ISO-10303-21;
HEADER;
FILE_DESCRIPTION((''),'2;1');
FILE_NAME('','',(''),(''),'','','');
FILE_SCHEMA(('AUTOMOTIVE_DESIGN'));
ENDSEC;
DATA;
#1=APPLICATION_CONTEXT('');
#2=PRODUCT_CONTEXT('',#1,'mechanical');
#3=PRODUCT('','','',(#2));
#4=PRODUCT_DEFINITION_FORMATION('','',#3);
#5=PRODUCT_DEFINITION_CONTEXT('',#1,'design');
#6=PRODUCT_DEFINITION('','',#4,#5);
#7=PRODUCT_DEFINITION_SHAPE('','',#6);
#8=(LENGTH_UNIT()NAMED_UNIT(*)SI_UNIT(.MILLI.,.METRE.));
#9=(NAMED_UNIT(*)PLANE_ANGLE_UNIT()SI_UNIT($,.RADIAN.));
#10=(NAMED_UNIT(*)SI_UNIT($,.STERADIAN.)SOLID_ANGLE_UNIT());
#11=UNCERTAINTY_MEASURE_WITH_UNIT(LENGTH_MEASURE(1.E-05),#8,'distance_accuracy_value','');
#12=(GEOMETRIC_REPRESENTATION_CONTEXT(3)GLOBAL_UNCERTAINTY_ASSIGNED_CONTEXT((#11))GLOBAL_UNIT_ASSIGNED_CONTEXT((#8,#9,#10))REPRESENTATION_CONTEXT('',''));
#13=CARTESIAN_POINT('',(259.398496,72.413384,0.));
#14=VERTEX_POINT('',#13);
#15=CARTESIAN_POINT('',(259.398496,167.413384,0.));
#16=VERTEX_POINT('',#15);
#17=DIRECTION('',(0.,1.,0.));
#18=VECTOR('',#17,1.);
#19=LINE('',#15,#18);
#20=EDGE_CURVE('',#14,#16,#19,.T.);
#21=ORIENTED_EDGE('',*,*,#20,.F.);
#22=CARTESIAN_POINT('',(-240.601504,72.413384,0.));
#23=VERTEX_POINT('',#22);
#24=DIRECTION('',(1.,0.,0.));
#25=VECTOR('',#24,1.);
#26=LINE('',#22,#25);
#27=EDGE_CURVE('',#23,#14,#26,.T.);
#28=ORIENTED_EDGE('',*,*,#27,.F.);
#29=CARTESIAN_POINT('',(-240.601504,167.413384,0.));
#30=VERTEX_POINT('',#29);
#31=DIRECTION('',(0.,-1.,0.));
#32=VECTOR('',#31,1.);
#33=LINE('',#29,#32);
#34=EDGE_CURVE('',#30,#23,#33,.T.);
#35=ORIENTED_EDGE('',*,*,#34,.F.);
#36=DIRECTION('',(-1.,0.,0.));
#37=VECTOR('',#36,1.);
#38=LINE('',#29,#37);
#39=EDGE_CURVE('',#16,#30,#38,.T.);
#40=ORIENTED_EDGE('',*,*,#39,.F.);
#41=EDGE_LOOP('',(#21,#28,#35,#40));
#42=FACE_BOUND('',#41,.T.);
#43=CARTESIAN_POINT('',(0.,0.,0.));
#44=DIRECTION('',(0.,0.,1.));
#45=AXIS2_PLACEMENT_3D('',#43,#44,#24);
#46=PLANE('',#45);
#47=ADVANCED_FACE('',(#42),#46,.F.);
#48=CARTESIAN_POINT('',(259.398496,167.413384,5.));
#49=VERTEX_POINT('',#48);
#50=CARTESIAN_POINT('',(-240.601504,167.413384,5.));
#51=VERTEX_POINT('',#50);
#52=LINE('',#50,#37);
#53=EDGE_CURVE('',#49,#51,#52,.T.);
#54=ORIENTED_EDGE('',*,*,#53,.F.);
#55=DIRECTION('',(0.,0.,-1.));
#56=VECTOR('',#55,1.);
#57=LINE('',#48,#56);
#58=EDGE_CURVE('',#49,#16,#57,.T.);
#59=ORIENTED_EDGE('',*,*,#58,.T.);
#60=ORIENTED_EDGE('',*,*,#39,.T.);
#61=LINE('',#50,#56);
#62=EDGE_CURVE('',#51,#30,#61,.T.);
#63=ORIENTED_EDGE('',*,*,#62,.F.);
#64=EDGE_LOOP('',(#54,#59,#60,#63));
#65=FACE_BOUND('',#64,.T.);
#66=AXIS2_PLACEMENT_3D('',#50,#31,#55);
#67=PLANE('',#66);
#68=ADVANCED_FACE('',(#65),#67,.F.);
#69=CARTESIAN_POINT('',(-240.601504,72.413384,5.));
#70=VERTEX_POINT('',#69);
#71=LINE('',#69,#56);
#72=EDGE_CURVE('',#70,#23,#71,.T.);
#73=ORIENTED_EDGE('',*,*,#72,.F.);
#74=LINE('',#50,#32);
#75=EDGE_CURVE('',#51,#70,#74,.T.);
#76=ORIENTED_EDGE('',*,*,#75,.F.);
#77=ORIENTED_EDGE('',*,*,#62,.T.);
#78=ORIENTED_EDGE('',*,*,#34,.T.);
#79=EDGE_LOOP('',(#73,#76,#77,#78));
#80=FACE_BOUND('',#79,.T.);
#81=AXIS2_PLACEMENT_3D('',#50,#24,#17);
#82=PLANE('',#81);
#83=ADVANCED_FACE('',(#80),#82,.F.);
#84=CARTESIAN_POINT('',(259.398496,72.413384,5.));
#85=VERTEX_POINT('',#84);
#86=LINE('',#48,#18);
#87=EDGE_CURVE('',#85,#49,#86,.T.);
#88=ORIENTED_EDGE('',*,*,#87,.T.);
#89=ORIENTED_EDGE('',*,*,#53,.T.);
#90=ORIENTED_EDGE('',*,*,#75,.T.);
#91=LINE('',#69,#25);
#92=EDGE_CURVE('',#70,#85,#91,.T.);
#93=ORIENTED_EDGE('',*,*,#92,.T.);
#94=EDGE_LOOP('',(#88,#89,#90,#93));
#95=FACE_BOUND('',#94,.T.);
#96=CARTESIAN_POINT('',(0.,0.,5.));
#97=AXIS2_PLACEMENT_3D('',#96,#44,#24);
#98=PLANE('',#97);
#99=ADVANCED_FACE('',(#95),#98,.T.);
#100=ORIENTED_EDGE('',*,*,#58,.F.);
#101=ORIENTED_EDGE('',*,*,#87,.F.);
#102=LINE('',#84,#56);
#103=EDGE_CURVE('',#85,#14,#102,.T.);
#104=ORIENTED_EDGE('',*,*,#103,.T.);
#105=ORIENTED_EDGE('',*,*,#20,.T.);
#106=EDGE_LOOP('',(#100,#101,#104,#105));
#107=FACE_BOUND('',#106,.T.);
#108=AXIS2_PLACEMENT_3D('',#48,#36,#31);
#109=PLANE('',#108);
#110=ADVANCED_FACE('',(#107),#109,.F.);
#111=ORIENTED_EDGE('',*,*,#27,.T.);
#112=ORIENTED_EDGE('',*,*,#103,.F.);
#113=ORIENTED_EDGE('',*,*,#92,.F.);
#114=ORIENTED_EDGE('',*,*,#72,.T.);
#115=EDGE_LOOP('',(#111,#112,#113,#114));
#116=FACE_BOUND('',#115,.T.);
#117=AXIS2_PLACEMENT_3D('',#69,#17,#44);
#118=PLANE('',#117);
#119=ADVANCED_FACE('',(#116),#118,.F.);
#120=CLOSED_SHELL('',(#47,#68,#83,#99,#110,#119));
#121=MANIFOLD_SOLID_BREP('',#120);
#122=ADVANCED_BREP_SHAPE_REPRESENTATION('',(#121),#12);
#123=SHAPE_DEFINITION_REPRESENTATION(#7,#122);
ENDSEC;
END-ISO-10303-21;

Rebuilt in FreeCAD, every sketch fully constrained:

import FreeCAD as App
import Part
import Sketcher

V = App.Vector
Q = App.Units.Quantity

doc = App.newDocument("Part")
params = doc.addObject("Spreadsheet::Sheet", "Params")
for row, (alias, value) in enumerate([
    ("sketch1_width", "500 mm"),
    ("sketch1_height", "95 mm"),
    ("pad1_length", "5 mm"),
], start=1):
    params.set(f"A{row}", alias)
    params.set(f"B{row}", "=" + value)
    params.setAlias(f"B{row}", alias)

body = doc.addObject("PartDesign::Body", "Body")

# Sketch on XY plane
sketch1 = doc.addObject("Sketcher::SketchObject", "Sketch")
body.addObject(sketch1)
sketch1.AttachmentSupport = (doc.XY_Plane, [""])
sketch1.MapMode = "FlatFace"
sketch1.addGeometry([
    Part.LineSegment(V(-241, 167, 0), V(-241, 72, 0)),
    Part.LineSegment(V(-241, 72, 0), V(259, 72, 0)),
    Part.LineSegment(V(259, 72, 0), V(259, 167, 0)),
    Part.LineSegment(V(259, 167, 0), V(-241, 167, 0)),
], False)
sketch1.addConstraint([
    Sketcher.Constraint("Coincident", 0, 2, 1, 1),
    Sketcher.Constraint("Coincident", 1, 2, 2, 1),
    Sketcher.Constraint("Coincident", 2, 2, 3, 1),
    Sketcher.Constraint("Coincident", 3, 2, 0, 1),
    Sketcher.Constraint("Vertical", 0),
    Sketcher.Constraint("Horizontal", 1),
    Sketcher.Constraint("Vertical", 2),
    Sketcher.Constraint("Horizontal", 3),
    Sketcher.Constraint("DistanceX", 1, 1, 1, 2, Q("500 mm")),
    Sketcher.Constraint("DistanceY", 0, 2, 0, 1, Q("95 mm")),
    Sketcher.Constraint("DistanceX", 0, 2, -1, 1, Q("240.601504 mm")),
    Sketcher.Constraint("DistanceY", -1, 1, 0, 2, Q("72.413384 mm")),
])
sketch1.setExpression("Constraints[8]", "Params.sketch1_width")
sketch1.setExpression("Constraints[9]", "Params.sketch1_height")
pad1 = doc.addObject("PartDesign::Pad", "Pad")
body.addObject(pad1)
pad1.Profile = sketch1
pad1.setExpression("Length", "Params.pad1_length")

doc.recompute()
